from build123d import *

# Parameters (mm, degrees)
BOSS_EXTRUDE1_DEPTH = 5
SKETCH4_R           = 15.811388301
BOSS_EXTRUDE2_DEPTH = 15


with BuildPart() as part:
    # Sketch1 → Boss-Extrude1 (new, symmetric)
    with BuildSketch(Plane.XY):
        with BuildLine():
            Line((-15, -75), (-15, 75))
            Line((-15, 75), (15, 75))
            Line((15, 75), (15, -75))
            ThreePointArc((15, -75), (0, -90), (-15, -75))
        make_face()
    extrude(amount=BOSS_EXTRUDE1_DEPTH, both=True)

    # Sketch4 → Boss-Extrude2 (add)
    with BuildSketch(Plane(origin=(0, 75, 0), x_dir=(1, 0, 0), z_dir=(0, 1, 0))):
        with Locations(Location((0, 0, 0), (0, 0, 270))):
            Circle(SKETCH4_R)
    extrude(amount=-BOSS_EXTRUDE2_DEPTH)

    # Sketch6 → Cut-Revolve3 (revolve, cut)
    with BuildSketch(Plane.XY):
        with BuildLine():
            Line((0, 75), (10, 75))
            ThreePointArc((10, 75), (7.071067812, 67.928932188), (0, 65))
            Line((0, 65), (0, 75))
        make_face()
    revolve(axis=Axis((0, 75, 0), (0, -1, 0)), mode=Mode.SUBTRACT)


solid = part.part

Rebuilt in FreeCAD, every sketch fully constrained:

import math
import FreeCAD as App
import Part
import Sketcher

V = App.Vector
Q = App.Units.Quantity

doc = App.newDocument("Part")
body = doc.addObject("PartDesign::Body", "Body")

sketch1 = doc.addObject("Sketcher::SketchObject", "Sketch")
body.addObject(sketch1)
sketch1.AttachmentSupport = (doc.XY_Plane, [""])
sketch1.MapMode = "FlatFace"
sketch1.addGeometry(Part.LineSegment(V(-15, 75, 0), V(-15, -75, 0)), False)
sketch1.addGeometry(Part.ArcOfCircle(Part.Circle(V(0, -75, 0), V(0, 0, 1), 15), math.radians(180), math.radians(360)), False)
sketch1.addGeometry(Part.LineSegment(V(15, -75, 0), V(15, 75, 0)), False)
sketch1.addGeometry(Part.LineSegment(V(15, 75, 0), V(-15, 75, 0)), False)
sketch1.addConstraint(Sketcher.Constraint("Tangent", 0, 2, 1, 1))
sketch1.addConstraint(Sketcher.Constraint("Tangent", 1, 2, 2, 1))
sketch1.addConstraint(Sketcher.Constraint("Coincident", 2, 2, 3, 1))
sketch1.addConstraint(Sketcher.Constraint("Coincident", 3, 2, 0, 1))
sketch1.addConstraint(Sketcher.Constraint("Vertical", 0))
sketch1.addConstraint(Sketcher.Constraint("Vertical", 2))
sketch1.addConstraint(Sketcher.Constraint("Horizontal", 3))
sketch1.addConstraint(Sketcher.Constraint("Symmetric", 0, 2, 2, 2, -1, 1))
sketch1.addConstraint(Sketcher.Constraint("Radius", 1, Q("15 mm")))
sketch1.addConstraint(Sketcher.Constraint("DistanceY", 0, 2, 0, 1, Q("150 mm")))
pad1 = doc.addObject("PartDesign::Pad", "Pad")
body.addObject(pad1)
pad1.Profile = sketch1
pad1.Length = 10
pad1.Midplane = True

sketch2 = doc.addObject("Sketcher::SketchObject", "Sketch001")
body.addObject(sketch2)
sketch2.AttachmentSupport = (doc.XZ_Plane, [""])
sketch2.MapMode = "FlatFace"
sketch2.AttachmentOffset = App.Placement(V(0, 0, -75), App.Rotation())
sketch2.addGeometry(Part.Circle(V(0, 0, 0), V(0, 0, 1), 16), False)
sketch2.addConstraint(Sketcher.Constraint("Coincident", 0, 3, -1, 1))
sketch2.addConstraint(Sketcher.Constraint("Diameter", 0, Q("31.622777 mm")))
pad2 = doc.addObject("PartDesign::Pad", "Pad001")
body.addObject(pad2)
pad2.Profile = sketch2
pad2.Length = 15

sketch3 = doc.addObject("Sketcher::SketchObject", "Sketch002")
body.addObject(sketch3)
sketch3.AttachmentSupport = (doc.XY_Plane, [""])
sketch3.MapMode = "FlatFace"
sketch3.addGeometry(Part.LineSegment(V(10, 75, 0), V(0, 75, 0)), False)
sketch3.addGeometry(Part.LineSegment(V(0, 75, 0), V(0, 65, 0)), False)
sketch3.addGeometry(Part.ArcOfCircle(Part.Circle(V(0, 75, 0), V(0, 0, 1), 10), math.radians(-90), math.radians(0)), False)
sketch3.addConstraint(Sketcher.Constraint("Coincident", 0, 2, 1, 1))
sketch3.addConstraint(Sketcher.Constraint("Coincident", 1, 2, 2, 1))
sketch3.addConstraint(Sketcher.Constraint("Coincident", 2, 2, 0, 1))
sketch3.addConstraint(Sketcher.Constraint("Horizontal", 0))
sketch3.addConstraint(Sketcher.Constraint("Vertical", 1))
sketch3.addConstraint(Sketcher.Constraint("Coincident", 0, 2, 2, 3))
sketch3.addConstraint(Sketcher.Constraint("PointOnObject", 2, 3, -2))
sketch3.addConstraint(Sketcher.Constraint("Radius", 2, Q("10 mm")))
sketch3.addConstraint(Sketcher.Constraint("DistanceY", -1, 1, 2, 3, Q("75 mm")))
groove = doc.addObject("PartDesign::Groove", "Groove")
body.addObject(groove)
groove.Profile = sketch3
groove.ReferenceAxis = (sketch3, ["V_Axis"])
groove.Angle = 360

doc.recompute()
